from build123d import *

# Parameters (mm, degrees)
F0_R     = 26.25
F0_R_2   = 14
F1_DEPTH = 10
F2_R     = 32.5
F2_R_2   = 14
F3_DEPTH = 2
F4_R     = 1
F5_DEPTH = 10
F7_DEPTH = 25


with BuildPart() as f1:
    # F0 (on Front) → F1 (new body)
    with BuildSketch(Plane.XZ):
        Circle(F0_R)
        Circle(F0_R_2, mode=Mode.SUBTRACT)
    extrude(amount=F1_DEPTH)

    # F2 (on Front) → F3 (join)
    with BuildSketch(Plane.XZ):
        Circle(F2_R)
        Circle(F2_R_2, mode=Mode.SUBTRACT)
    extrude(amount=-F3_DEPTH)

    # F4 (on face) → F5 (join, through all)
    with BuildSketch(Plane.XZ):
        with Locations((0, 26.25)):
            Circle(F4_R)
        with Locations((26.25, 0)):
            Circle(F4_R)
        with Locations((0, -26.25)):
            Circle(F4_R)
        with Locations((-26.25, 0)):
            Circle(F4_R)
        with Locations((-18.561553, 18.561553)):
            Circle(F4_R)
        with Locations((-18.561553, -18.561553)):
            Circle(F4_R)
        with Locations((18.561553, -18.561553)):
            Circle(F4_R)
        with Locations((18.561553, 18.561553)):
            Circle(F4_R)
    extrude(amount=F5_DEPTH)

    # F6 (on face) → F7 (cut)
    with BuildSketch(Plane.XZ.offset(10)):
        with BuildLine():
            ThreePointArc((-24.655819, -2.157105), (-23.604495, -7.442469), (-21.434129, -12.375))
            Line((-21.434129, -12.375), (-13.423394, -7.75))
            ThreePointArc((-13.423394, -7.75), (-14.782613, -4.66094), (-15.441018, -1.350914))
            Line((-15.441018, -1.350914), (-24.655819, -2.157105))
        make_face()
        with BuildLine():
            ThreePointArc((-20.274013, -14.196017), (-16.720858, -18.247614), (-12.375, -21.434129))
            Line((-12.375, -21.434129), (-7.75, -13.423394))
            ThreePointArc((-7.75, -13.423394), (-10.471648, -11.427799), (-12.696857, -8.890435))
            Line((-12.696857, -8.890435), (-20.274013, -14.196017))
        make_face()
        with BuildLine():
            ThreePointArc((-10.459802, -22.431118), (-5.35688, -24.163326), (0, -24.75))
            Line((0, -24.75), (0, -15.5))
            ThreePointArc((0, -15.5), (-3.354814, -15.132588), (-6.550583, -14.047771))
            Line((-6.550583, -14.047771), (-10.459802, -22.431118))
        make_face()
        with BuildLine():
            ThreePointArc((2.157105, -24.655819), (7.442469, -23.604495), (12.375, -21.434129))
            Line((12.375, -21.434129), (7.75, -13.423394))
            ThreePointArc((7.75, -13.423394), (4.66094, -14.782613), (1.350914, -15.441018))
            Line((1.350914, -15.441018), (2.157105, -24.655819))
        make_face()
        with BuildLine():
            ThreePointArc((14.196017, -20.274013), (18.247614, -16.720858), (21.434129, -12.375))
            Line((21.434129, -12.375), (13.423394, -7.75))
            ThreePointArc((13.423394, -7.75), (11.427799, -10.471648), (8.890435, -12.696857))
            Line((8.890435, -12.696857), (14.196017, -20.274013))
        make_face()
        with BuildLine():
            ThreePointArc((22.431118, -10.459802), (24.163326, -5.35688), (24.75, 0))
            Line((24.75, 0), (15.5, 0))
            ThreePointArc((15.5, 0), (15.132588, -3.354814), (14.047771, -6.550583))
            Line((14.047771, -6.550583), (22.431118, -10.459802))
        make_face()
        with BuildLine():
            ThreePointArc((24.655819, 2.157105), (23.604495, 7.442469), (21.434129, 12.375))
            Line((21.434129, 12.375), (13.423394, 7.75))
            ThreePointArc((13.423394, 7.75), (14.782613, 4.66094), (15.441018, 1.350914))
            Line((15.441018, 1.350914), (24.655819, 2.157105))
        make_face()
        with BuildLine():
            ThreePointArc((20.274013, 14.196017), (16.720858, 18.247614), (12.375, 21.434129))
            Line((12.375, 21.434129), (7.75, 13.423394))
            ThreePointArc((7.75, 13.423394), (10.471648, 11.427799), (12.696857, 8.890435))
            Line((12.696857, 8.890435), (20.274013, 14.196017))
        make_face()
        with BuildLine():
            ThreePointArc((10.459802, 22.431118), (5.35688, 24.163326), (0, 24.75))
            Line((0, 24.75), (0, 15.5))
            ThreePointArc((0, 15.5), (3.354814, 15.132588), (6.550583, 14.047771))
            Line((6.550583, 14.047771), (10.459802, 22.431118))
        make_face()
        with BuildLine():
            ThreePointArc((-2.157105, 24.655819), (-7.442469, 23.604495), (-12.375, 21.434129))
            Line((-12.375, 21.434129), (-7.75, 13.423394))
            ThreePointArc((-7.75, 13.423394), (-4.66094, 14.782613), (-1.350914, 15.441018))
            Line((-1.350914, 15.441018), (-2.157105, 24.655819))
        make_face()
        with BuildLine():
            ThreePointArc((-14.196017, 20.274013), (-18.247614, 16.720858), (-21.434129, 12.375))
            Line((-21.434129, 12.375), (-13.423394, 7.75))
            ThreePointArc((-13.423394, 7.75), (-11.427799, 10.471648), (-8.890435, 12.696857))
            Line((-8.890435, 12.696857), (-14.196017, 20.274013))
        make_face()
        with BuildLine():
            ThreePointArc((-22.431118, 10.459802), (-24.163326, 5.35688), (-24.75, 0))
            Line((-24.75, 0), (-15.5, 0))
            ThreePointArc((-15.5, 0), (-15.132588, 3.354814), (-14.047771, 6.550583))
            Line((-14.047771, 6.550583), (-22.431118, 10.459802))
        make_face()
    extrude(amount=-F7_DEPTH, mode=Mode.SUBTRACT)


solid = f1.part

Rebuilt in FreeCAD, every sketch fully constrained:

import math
import FreeCAD as App
import Part
import Sketcher
from FreeCAD import Vector
Q = App.Units.Quantity

doc = App.newDocument("Part")
body = doc.addObject("PartDesign::Body", "Body")

# Sketch on XZ plane
sketch1 = doc.addObject("Sketcher::SketchObject", "Sketch")
body.addObject(sketch1)
sketch1.AttachmentSupport = (doc.XZ_Plane, [""])
sketch1.MapMode = "FlatFace"
sketch1.addGeometry([
    Part.Circle(Vector(0, 0, 0), Vector(0, 0, 1), 26),
    Part.Circle(Vector(0, 0, 0), Vector(0, 0, 1), 14),
], False)
sketch1.addConstraint([
    Sketcher.Constraint("Coincident", 0, 3, -1, 1),
    Sketcher.Constraint("Coincident", 1, 3, -1, 1),
    Sketcher.Constraint("Diameter", 1, 28.0),
    Sketcher.Constraint("Diameter", 0, 52.5),
])
pad1 = doc.addObject("PartDesign::Pad", "Pad")
body.addObject(pad1)
pad1.Profile = sketch1
pad1.Length = 10

# Sketch on XZ plane
sketch2 = doc.addObject("Sketcher::SketchObject", "Sketch001")
body.addObject(sketch2)
sketch2.AttachmentSupport = (doc.XZ_Plane, [""])
sketch2.MapMode = "FlatFace"
sketch2.addGeometry([
    Part.Circle(Vector(0, 0, 0), Vector(0, 0, 1), 32),
    Part.Circle(Vector(0, 0, 0), Vector(0, 0, 1), 14),
], False)
sketch2.addConstraint([
    Sketcher.Constraint("Coincident", 0, 3, -1, 1),
    Sketcher.Constraint("Coincident", 1, 3, -1, 1),
    Sketcher.Constraint("Diameter", 0, 65.0),
    Sketcher.Constraint("Diameter", 1, 28.0),
])
pad2 = doc.addObject("PartDesign::Pad", "Pad001")
body.addObject(pad2)
pad2.Profile = sketch2
pad2.Length = 2
pad2.Reversed = True

# Sketch on XZ plane
sketch3 = doc.addObject("Sketcher::SketchObject", "Sketch002")
body.addObject(sketch3)
sketch3.AttachmentSupport = (doc.XZ_Plane, [""])
sketch3.MapMode = "FlatFace"
sketch3.addGeometry([
    Part.Circle(Vector(0, 26.2, 0), Vector(0, 0, 1), 1),  # 0
    Part.Circle(Vector(26.2, 0, 0), Vector(0, 0, 1), 1),  # 1
    Part.Circle(Vector(0, -26.2, 0), Vector(0, 0, 1), 1),  # 2
    Part.Circle(Vector(-26.2, 0, 0), Vector(0, 0, 1), 1),  # 3
    Part.Circle(Vector(-18.6, 18.6, 0), Vector(0, 0, 1), 1),  # 4
    Part.Circle(Vector(-18.6, -18.6, 0), Vector(0, 0, 1), 1),  # 5
    Part.Circle(Vector(18.6, -18.6, 0), Vector(0, 0, 1), 1),  # 6
    Part.Circle(Vector(18.6, 18.6, 0), Vector(0, 0, 1), 1),  # 7
], False)
sketch3.addConstraint([
    Sketcher.Constraint("Equal", 0, 1),
    Sketcher.Constraint("Equal", 1, 2),
    Sketcher.Constraint("Equal", 2, 3),
    Sketcher.Constraint("Equal", 3, 4),
    Sketcher.Constraint("Equal", 4, 5),
    Sketcher.Constraint("Equal", 5, 6),
    Sketcher.Constraint("Equal", 6, 7),
    Sketcher.Constraint("Symmetric", 0, 3, 2, 3, -1, 1),
    Sketcher.Constraint("Symmetric", 1, 3, 3, 3, -1, 1),
    Sketcher.Constraint("Symmetric", 4, 3, 6, 3, -1, 1),
    Sketcher.Constraint("Symmetric", 5, 3, 7, 3, -1, 1),
    Sketcher.Constraint("Symmetric", 5, 3, 6, 3, -2),
    Sketcher.Constraint("PointOnObject", 0, 3, -2),
    Sketcher.Constraint("PointOnObject", 1, 3, -1),
    Sketcher.Constraint("Diameter", 0, 2.0),
    Sketcher.Constraint("DistanceY", 2, 3, 0, 3, 52.5),
    Sketcher.Constraint("DistanceX", 3, 3, 1, 3, 52.5),
    Sketcher.Constraint("DistanceX", 4, 3, -1, 1, 18.561553),
    Sketcher.Constraint("DistanceY", -1, 1, 4, 3, 18.561553),
])
pad3 = doc.addObject("PartDesign::Pad", "Pad002")
body.addObject(pad3)
pad3.Profile = sketch3
pad3.Length = 10

# Sketch on XZ plane
sketch4 = doc.addObject("Sketcher::SketchObject", "Sketch003")
body.addObject(sketch4)
sketch4.AttachmentSupport = (doc.XZ_Plane, [""])
sketch4.MapMode = "FlatFace"
sketch4.AttachmentOffset = App.Placement(Vector(0, 0, 10), App.Rotation())
sketch4.addGeometry([
    Part.ArcOfCircle(Part.Circle(Vector(-0.000014, -0.000004, 0), Vector(0, 0, 1), 24.749986), math.radians(-175.000006), math.radians(-149.999993)),  # 0
    Part.LineSegment(Vector(-21.434129, -12.375, 0), Vector(-13.423394, -7.75, 0)),  # 1
    Part.ArcOfCircle(Part.Circle(Vector(-0.000004, -0.000001, 0), Vector(0, 0, 1), 15.499996), math.radians(-175.000003), math.radians(-149.999998)),  # 2
    Part.LineSegment(Vector(-15.441018, -1.350914, 0), Vector(-24.655819, -2.157105, 0)),  # 3
    Part.ArcOfCircle(Part.Circle(Vector(-0.000001, -0.000002, 0), Vector(0, 0, 1), 24.749998), math.radians(-145.000002), math.radians(-120)),  # 4
    Part.LineSegment(Vector(-12.375, -21.434129, 0), Vector(-7.75, -13.423394, 0)),  # 5
    Part.ArcOfCircle(Part.Circle(Vector(0.000007, 0.000008, 0), Vector(0, 0, 1), 15.50001), math.radians(-144.99999), math.radians(-120.000006)),  # 6
    Part.LineSegment(Vector(-12.696857, -8.890435, 0), Vector(-20.274013, -14.196017, 0)),  # 7
    Part.ArcOfCircle(Part.Circle(Vector(0.000003, 0.000016, 0), Vector(0, 0, 1), 24.750016), math.radians(-114.99999), math.radians(-90.000007)),  # 8
    Part.LineSegment(Vector(0, -24.75, 0), Vector(0, -15.5, 0)),  # 9
    Part.ArcOfCircle(Part.Circle(Vector(0.000002, 0.00001, 0), Vector(0, 0, 1), 15.50001), math.radians(-114.999989), math.radians(-90.000006)),  # 10
    Part.LineSegment(Vector(-6.550583, -14.047771, 0), Vector(-10.459802, -22.431118, 0)),  # 11
    Part.ArcOfCircle(Part.Circle(Vector(0.000004, -0.000014, 0), Vector(0, 0, 1), 24.749986), math.radians(-85.000006), math.radians(-59.999993)),  # 12
    Part.LineSegment(Vector(12.375, -21.434129, 0), Vector(7.75, -13.423394, 0)),  # 13
    Part.ArcOfCircle(Part.Circle(Vector(0.000001, -0.000004, 0), Vector(0, 0, 1), 15.499996), math.radians(-85.000003), math.radians(-59.999998)),  # 14
    Part.LineSegment(Vector(1.350914, -15.441018, 0), Vector(2.157105, -24.655819, 0)),  # 15
    Part.ArcOfCircle(Part.Circle(Vector(0.000002, -0.000001, 0), Vector(0, 0, 1), 24.749998), math.radians(-55.000002), math.radians(-30)),  # 16
    Part.LineSegment(Vector(21.434129, -12.375, 0), Vector(13.423394, -7.75, 0)),  # 17
    Part.ArcOfCircle(Part.Circle(Vector(-0.000008, 0.000007, 0), Vector(0, 0, 1), 15.50001), math.radians(-54.99999), math.radians(-30.000006)),  # 18
    Part.LineSegment(Vector(8.890435, -12.696857, 0), Vector(14.196017, -20.274013, 0)),  # 19
    Part.ArcOfCircle(Part.Circle(Vector(-0.000016, 0.000003, 0), Vector(0, 0, 1), 24.750016), math.radians(-24.99999), math.radians(-0.000007)),  # 20
    Part.LineSegment(Vector(24.75, 0, 0), Vector(15.5, 0, 0)),  # 21
    Part.ArcOfCircle(Part.Circle(Vector(-0.00001, 0.000002, 0), Vector(0, 0, 1), 15.50001), math.radians(-24.999989), math.radians(-0.000006)),  # 22
    Part.LineSegment(Vector(14.047771, -6.550583, 0), Vector(22.431118, -10.459802, 0)),  # 23
    Part.ArcOfCircle(Part.Circle(Vector(0.000014, 0.000004, 0), Vector(0, 0, 1), 24.749986), math.radians(4.999994), math.radians(30.000007)),  # 24
    Part.LineSegment(Vector(21.434129, 12.375, 0), Vector(13.423394, 7.75, 0)),  # 25
    Part.ArcOfCircle(Part.Circle(Vector(0.000004, 0.000001, 0), Vector(0, 0, 1), 15.499996), math.radians(4.999997), math.radians(30.000002)),  # 26
    Part.LineSegment(Vector(15.441018, 1.350914, 0), Vector(24.655819, 2.157105, 0)),  # 27
    Part.ArcOfCircle(Part.Circle(Vector(0.000001, 0.000002, 0), Vector(0, 0, 1), 24.749998), math.radians(34.999998), math.radians(60)),  # 28
    Part.LineSegment(Vector(12.375, 21.434129, 0), Vector(7.75, 13.423394, 0)),  # 29
    Part.ArcOfCircle(Part.Circle(Vector(-0.000007, -0.000008, 0), Vector(0, 0, 1), 15.50001), math.radians(35.00001), math.radians(59.999994)),  # 30
    Part.LineSegment(Vector(12.696857, 8.890435, 0), Vector(20.274013, 14.196017, 0)),  # 31
    Part.ArcOfCircle(Part.Circle(Vector(-0.000003, -0.000016, 0), Vector(0, 0, 1), 24.750016), math.radians(65.00001), math.radians(89.999993)),  # 32
    Part.LineSegment(Vector(0, 24.75, 0), Vector(0, 15.5, 0)),  # 33
    Part.ArcOfCircle(Part.Circle(Vector(-0.000002, -0.00001, 0), Vector(0, 0, 1), 15.50001), math.radians(65.000011), math.radians(89.999994)),  # 34
    Part.LineSegment(Vector(6.550583, 14.047771, 0), Vector(10.459802, 22.431118, 0)),  # 35
    Part.ArcOfCircle(Part.Circle(Vector(-0.000004, 0.000014, 0), Vector(0, 0, 1), 24.749986), math.radians(94.999994), math.radians(120.000007)),  # 36
    Part.LineSegment(Vector(-12.375, 21.434129, 0), Vector(-7.75, 13.423394, 0)),  # 37
    Part.ArcOfCircle(Part.Circle(Vector(-0.000001, 0.000004, 0), Vector(0, 0, 1), 15.499996), math.radians(94.999997), math.radians(120.000002)),  # 38
    Part.LineSegment(Vector(-1.350914, 15.441018, 0), Vector(-2.157105, 24.655819, 0)),  # 39
    Part.ArcOfCircle(Part.Circle(Vector(-0.000002, 0.000001, 0), Vector(0, 0, 1), 24.749998), math.radians(124.999998), math.radians(150)),  # 40
    Part.LineSegment(Vector(-21.434129, 12.375, 0), Vector(-13.423394, 7.75, 0)),  # 41
    Part.ArcOfCircle(Part.Circle(Vector(0.000008, -0.000007, 0), Vector(0, 0, 1), 15.50001), math.radians(125.00001), math.radians(149.999994)),  # 42
    Part.LineSegment(Vector(-8.890435, 12.696857, 0), Vector(-14.196017, 20.274013, 0)),  # 43
    Part.ArcOfCircle(Part.Circle(Vector(0.000016, -0.000003, 0), Vector(0, 0, 1), 24.750016), math.radians(155.00001), math.radians(179.999993)),  # 44
    Part.LineSegment(Vector(-24.75, 0, 0), Vector(-15.5, 0, 0)),  # 45
    Part.ArcOfCircle(Part.Circle(Vector(0.00001, -0.000002, 0), Vector(0, 0, 1), 15.50001), math.radians(155.000011), math.radians(179.999994)),  # 46
    Part.LineSegment(Vector(-14.047771, 6.550583, 0), Vector(-22.431118, 10.459802, 0)),  # 47
], False)
sketch4.addConstraint([
    Sketcher.Constraint("Coincident", 0, 2, 1, 1),
    Sketcher.Constraint("Coincident", 1, 2, 2, 2),
    Sketcher.Constraint("Coincident", 2, 1, 3, 1),
    Sketcher.Constraint("Coincident", 3, 2, 0, 1),
    Sketcher.Constraint("Coincident", 4, 2, 5, 1),
    Sketcher.Constraint("Coincident", 5, 2, 6, 2),
    Sketcher.Constraint("Coincident", 6, 1, 7, 1),
    Sketcher.Constraint("Coincident", 7, 2, 4, 1),
    Sketcher.Constraint("Coincident", 8, 2, 9, 1),
    Sketcher.Constraint("Coincident", 9, 2, 10, 2),
    Sketcher.Constraint("Coincident", 10, 1, 11, 1),
    Sketcher.Constraint("Coincident", 11, 2, 8, 1),
    Sketcher.Constraint("Coincident", 12, 2, 13, 1),
    Sketcher.Constraint("Coincident", 13, 2, 14, 2),
    Sketcher.Constraint("Coincident", 14, 1, 15, 1),
    Sketcher.Constraint("Coincident", 15, 2, 12, 1),
    Sketcher.Constraint("Coincident", 16, 2, 17, 1),
    Sketcher.Constraint("Coincident", 17, 2, 18, 2),
    Sketcher.Constraint("Coincident", 18, 1, 19, 1),
    Sketcher.Constraint("Coincident", 19, 2, 16, 1),
    Sketcher.Constraint("Coincident", 20, 2, 21, 1),
    Sketcher.Constraint("Coincident", 21, 2, 22, 2),
    Sketcher.Constraint("Coincident", 22, 1, 23, 1),
    Sketcher.Constraint("Coincident", 23, 2, 20, 1),
    Sketcher.Constraint("Coincident", 24, 2, 25, 1),
    Sketcher.Constraint("Coincident", 25, 2, 26, 2),
    Sketcher.Constraint("Coincident", 26, 1, 27, 1),
    Sketcher.Constraint("Coincident", 27, 2, 24, 1),
    Sketcher.Constraint("Coincident", 28, 2, 29, 1),
    Sketcher.Constraint("Coincident", 29, 2, 30, 2),
    Sketcher.Constraint("Coincident", 30, 1, 31, 1),
    Sketcher.Constraint("Coincident", 31, 2, 28, 1),
    Sketcher.Constraint("Coincident", 32, 2, 33, 1),
    Sketcher.Constraint("Coincident", 33, 2, 34, 2),
    Sketcher.Constraint("Coincident", 34, 1, 35, 1),
    Sketcher.Constraint("Coincident", 35, 2, 32, 1),
    Sketcher.Constraint("Coincident", 36, 2, 37, 1),
    Sketcher.Constraint("Coincident", 37, 2, 38, 2),
    Sketcher.Constraint("Coincident", 38, 1, 39, 1),
    Sketcher.Constraint("Coincident", 39, 2, 36, 1),
    Sketcher.Constraint("Coincident", 40, 2, 41, 1),
    Sketcher.Constraint("Coincident", 41, 2, 42, 2),
    Sketcher.Constraint("Coincident", 42, 1, 43, 1),
    Sketcher.Constraint("Coincident", 43, 2, 40, 1),
    Sketcher.Constraint("Coincident", 44, 2, 45, 1),
    Sketcher.Constraint("Coincident", 45, 2, 46, 2),
    Sketcher.Constraint("Coincident", 46, 1, 47, 1),
    Sketcher.Constraint("Coincident", 47, 2, 44, 1),
    Sketcher.Constraint("Vertical", 9),
    Sketcher.Constraint("Horizontal", 21),
    Sketcher.Constraint("Vertical", 33),
    Sketcher.Constraint("Horizontal", 45),
    Sketcher.Constraint("Coincident", 2, 3, -1, 1),
    Sketcher.Constraint("Coincident", 4, 3, -1, 1),
    Sketcher.Constraint("Coincident", 10, 3, -1, 1),
    Sketcher.Constraint("Coincident", 14, 3, -1, 1),
    Sketcher.Constraint("Coincident", 16, 3, -1, 1),
    Sketcher.Constraint("Coincident", 22, 3, -1, 1),
    Sketcher.Constraint("Coincident", 26, 3, -1, 1),
    Sketcher.Constraint("Coincident", 28, 3, -1, 1),
    Sketcher.Constraint("Coincident", 34, 3, -1, 1),
    Sketcher.Constraint("Coincident", 38, 3, -1, 1),
    Sketcher.Constraint("Coincident", 40, 3, -1, 1),
    Sketcher.Constraint("Coincident", 46, 3, -1, 1),
    Sketcher.Constraint("Coincident", 8, 3, 6, 3),
    Sketcher.Constraint("Coincident", 10, 3, 6, 3),
    Sketcher.Constraint("Coincident", 18, 3, 2, 3),
    Sketcher.Constraint("Coincident", 20, 3, 0, 3),
    Sketcher.Constraint("Coincident", 22, 3, 0, 3),
    Sketcher.Constraint("Coincident", 24, 3, 6, 3),
    Sketcher.Constraint("Coincident", 30, 3, 0, 3),
    Sketcher.Constraint("Coincident", 32, 3, 12, 3),
    Sketcher.Constraint("Coincident", 36, 3, 8, 3),
    Sketcher.Constraint("Coincident", 42, 3, 12, 3),
    Sketcher.Constraint("Coincident", 44, 3, 24, 3),
    Sketcher.Constraint("Equal", 6, 10),
    Sketcher.Constraint("Equal", 0, 12),
    Sketcher.Constraint("Equal", 2, 14),
    Sketcher.Constraint("Equal", 4, 16),
    Sketcher.Constraint("Equal", 10, 18),
    Sketcher.Constraint("Equal", 8, 20),
    Sketcher.Constraint("Equal", 18, 22),
    Sketcher.Constraint("Equal", 12, 24),
    Sketcher.Constraint("Equal", 14, 26),
    Sketcher.Constraint("Equal", 16, 28),
    Sketcher.Constraint("Equal", 22, 30),
    Sketcher.Constraint("Equal", 20, 32),
    Sketcher.Constraint("Equal", 30, 34),
    Sketcher.Constraint("Equal", 24, 36),
    Sketcher.Constraint("Equal", 26, 38),
    Sketcher.Constraint("Equal", 28, 40),
    Sketcher.Constraint("Equal", 34, 42),
    Sketcher.Constraint("Equal", 32, 44),
    Sketcher.Constraint("Equal", 42, 46),
    Sketcher.Constraint("Symmetric", 8, 3, 12, 3, -1, 1),
    Sketcher.Constraint("Symmetric", 4, 2, 12, 2, -2),
    Sketcher.Constraint("Symmetric", 5, 2, 13, 2, -2),
    Sketcher.Constraint("PointOnObject", 8, 2, -2),
    Sketcher.Constraint("PointOnObject", 20, 2, -1),
    Sketcher.Constraint("PointOnObject", 32, 2, -2),
    Sketcher.Constraint("PointOnObject", 44, 2, -1),
    Sketcher.Constraint("Perpendicular", 1, 13),
    Sketcher.Constraint("Perpendicular", 3, 15),
    Sketcher.Constraint("Perpendicular", 5, 17),
    Sketcher.Constraint("Perpendicular", 7, 19),
    Sketcher.Constraint("Perpendicular", 11, 23),
    Sketcher.Constraint("Perpendicular", 13, 25),
    Sketcher.Constraint("Perpendicular", 15, 27),
    Sketcher.Constraint("Perpendicular", 17, 29),
    Sketcher.Constraint("Perpendicular", 19, 31),
    Sketcher.Constraint("Perpendicular", 23, 35),
    Sketcher.Constraint("Perpendicular", 25, 37),
    Sketcher.Constraint("Perpendicular", 27, 39),
    Sketcher.Constraint("Perpendicular", 29, 41),
    Sketcher.Constraint("Perpendicular", 31, 43),
    Sketcher.Constraint("Perpendicular", 35, 47),
    Sketcher.Constraint("Horizontal", 0, 2, 16, 2),
    Sketcher.Constraint("Horizontal", 28, 2, 36, 2),
    Sketcher.Constraint("Horizontal", 24, 2, 40, 2),
    Sketcher.Constraint("Vertical", 16, 2, 24, 2),
    Sketcher.Constraint("Vertical", 12, 2, 28, 2),
    Sketcher.Constraint("Equal", 7, 11),
    Sketcher.Constraint("Angle", 1, Q("30 deg")),
    Sketcher.Constraint("Angle", 3, Q("-174.999998 deg")),
    Sketcher.Constraint("Angle", 7, Q("-144.999999 deg")),
    Sketcher.Constraint("Angle", 11, Q("-115.000001 deg")),
    Sketcher.Constraint("DistanceX", 21, 2, 21, 1, 9.25),
    Sketcher.Constraint("DistanceY", 9, 2, -1, 1, 15.5),
    Sketcher.Constraint("DistanceY", 1, 2, -1, 1, 7.75),
    Sketcher.Constraint("DistanceX", 5, 2, -1, 1, 7.75),
    Sketcher.Constraint("DistanceX", 2, 1, -1, 1, 15.441018),
    Sketcher.Constraint("DistanceY", 10, 1, -1, 1, 14.047771),
    Sketcher.Constraint("DistanceY", 14, 1, -1, 1, 15.441018),
    Sketcher.Constraint("DistanceX", -1, 1, 22, 1, 14.047771),
    Sketcher.Constraint("DistanceX", -1, 1, 26, 1, 15.441018),
    Sketcher.Constraint("DistanceY", -1, 1, 34, 1, 14.047771),
    Sketcher.Constraint("DistanceY", -1, 1, 38, 1, 15.441018),
    Sketcher.Constraint("DistanceX", 46, 1, -1, 1, 14.047771),
    Sketcher.Constraint("DistanceX", 6, 1, -1, 1, 12.696857),
    Sketcher.Constraint("DistanceX", -1, 1, 18, 1, 8.890435),
    Sketcher.Constraint("DistanceX", -1, 1, 30, 1, 12.696857),
    Sketcher.Constraint("DistanceX", 42, 1, -1, 1, 8.890435),
])
pocket1 = doc.addObject("PartDesign::Pocket", "Pocket")
body.addObject(pocket1)
pocket1.Profile = sketch4
pocket1.Length = 25

doc.recompute()
